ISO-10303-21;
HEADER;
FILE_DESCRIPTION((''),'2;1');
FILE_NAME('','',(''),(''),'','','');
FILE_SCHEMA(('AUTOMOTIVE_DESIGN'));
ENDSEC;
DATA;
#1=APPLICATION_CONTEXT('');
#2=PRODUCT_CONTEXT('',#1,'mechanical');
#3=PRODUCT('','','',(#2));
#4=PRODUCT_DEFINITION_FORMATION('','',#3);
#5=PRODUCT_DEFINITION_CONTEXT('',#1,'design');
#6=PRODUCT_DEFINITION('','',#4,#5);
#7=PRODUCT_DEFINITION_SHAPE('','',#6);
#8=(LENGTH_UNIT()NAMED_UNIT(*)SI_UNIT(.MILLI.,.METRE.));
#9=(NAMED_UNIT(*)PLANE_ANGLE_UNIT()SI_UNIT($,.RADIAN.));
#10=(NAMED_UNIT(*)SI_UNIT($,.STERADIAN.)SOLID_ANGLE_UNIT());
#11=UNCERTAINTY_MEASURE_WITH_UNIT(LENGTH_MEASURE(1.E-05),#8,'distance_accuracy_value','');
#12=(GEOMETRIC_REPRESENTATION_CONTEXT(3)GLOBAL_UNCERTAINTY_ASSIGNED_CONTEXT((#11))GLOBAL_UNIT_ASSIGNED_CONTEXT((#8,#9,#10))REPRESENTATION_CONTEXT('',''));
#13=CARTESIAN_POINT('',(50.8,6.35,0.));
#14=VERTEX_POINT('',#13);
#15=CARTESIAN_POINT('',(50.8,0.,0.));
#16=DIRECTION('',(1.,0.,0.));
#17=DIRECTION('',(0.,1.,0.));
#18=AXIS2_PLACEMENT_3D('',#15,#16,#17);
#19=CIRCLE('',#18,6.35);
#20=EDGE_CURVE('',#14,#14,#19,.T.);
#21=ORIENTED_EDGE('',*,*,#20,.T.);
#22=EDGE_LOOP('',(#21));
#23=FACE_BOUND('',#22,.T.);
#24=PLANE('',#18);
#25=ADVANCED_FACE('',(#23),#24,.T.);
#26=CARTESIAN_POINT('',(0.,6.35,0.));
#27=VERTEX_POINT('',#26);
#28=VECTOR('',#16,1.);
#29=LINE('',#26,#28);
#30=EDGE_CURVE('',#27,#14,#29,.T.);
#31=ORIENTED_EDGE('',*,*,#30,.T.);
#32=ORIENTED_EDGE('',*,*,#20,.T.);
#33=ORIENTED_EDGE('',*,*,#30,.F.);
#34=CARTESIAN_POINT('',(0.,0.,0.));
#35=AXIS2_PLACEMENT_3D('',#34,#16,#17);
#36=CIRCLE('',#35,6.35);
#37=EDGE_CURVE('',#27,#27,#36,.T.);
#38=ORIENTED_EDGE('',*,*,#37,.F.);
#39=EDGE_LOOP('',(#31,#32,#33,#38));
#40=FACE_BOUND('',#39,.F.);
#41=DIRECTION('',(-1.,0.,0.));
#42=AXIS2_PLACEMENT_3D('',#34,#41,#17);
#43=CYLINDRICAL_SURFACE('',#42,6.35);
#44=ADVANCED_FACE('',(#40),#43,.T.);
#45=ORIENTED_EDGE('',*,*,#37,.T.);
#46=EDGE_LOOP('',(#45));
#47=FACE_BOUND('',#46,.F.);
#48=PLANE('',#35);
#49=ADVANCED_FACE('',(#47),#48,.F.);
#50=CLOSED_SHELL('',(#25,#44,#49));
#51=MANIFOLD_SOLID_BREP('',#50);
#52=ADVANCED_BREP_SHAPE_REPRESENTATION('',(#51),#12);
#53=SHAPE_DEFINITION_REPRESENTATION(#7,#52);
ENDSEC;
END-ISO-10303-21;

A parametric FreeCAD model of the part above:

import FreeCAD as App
import Part
import Sketcher

V = App.Vector
Q = App.Units.Quantity

doc = App.newDocument("Part")
body = doc.addObject("PartDesign::Body", "Body")

# Sketch on YZ plane
sketch1 = doc.addObject("Sketcher::SketchObject", "Sketch")
body.addObject(sketch1)
sketch1.AttachmentSupport = (doc.YZ_Plane, [""])
sketch1.MapMode = "FlatFace"
sketch1.addGeometry(Part.Circle(V(0, 0, 0), V(0, 0, 1), 6), False)
sketch1.addConstraint([
    Sketcher.Constraint("Coincident", 0, 3, -1, 1),
    Sketcher.Constraint("Diameter", 0, Q("0.5 in")),
])
pad1 = doc.addObject("PartDesign::Pad", "Pad")
body.addObject(pad1)
pad1.Profile = sketch1
pad1.Length = Q("2 in")

doc.recompute()
